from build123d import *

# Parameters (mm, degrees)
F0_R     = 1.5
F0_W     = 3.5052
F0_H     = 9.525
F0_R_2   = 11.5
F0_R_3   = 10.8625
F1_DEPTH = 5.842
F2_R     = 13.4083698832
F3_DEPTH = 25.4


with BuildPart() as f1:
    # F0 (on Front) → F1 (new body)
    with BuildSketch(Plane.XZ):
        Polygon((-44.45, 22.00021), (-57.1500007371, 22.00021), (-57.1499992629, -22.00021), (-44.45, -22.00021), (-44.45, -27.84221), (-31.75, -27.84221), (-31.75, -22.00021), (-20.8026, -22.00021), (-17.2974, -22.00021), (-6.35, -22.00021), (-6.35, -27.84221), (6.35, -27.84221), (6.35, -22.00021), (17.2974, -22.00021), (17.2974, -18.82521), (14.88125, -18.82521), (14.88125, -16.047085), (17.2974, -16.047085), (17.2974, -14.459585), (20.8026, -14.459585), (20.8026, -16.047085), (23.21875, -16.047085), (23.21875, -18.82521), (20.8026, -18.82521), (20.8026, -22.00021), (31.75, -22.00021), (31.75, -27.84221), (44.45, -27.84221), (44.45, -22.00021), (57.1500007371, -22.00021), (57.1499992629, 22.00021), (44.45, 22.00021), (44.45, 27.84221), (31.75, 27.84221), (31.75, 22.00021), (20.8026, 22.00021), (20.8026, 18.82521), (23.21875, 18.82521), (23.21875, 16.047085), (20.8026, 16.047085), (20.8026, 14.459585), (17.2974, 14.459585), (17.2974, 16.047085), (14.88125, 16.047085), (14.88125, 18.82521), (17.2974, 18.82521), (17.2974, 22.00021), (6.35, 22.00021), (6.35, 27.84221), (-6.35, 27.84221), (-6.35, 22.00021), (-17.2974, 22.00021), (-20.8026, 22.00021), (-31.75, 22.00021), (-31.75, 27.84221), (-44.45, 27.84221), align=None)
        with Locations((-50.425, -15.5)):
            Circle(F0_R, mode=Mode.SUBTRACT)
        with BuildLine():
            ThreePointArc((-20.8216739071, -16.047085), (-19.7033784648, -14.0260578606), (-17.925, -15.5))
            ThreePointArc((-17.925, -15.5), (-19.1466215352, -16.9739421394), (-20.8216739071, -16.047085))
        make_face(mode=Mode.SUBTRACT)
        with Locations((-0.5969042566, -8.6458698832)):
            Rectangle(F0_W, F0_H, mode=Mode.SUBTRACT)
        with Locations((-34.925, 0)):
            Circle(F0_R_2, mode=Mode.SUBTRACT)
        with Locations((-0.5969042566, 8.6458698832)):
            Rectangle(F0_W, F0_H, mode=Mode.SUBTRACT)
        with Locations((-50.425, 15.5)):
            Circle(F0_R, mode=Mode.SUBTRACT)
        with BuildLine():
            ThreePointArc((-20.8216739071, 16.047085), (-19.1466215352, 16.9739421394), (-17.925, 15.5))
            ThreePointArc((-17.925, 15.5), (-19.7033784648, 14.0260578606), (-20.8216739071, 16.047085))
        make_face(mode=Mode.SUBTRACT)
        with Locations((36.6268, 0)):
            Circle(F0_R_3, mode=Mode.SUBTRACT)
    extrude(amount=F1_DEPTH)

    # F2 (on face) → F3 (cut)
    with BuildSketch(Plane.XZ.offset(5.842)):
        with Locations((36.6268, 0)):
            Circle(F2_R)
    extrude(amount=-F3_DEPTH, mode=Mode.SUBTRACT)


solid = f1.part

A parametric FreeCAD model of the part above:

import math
import FreeCAD as App
import Part
import Sketcher

V = App.Vector
Q = App.Units.Quantity

doc = App.newDocument("Part")
params = doc.addObject("Spreadsheet::Sheet", "Params")
for row, (alias, value) in enumerate([
    ("sketch1_width", "1 in"),
    ("sketch1_width2", "0.5 in"),
    ("sketch1_height", "0.23 in"),
    ("sketch1_width3", "0.431 in"),
    ("sketch1_height2", "0.125 in"),
    ("pad1_length", "0.23 in"),
    ("pocket1_length", "1 in"),
], start=1):
    params.set(f"A{row}", alias)
    params.set(f"B{row}", "=" + value)
    params.setAlias(f"B{row}", alias)

body = doc.addObject("PartDesign::Body", "Body")

# Sketch on XZ plane
sketch1 = doc.addObject("Sketcher::SketchObject", "Sketch")
body.addObject(sketch1)
sketch1.AttachmentSupport = (doc.XZ_Plane, [""])
sketch1.MapMode = "FlatFace"
sketch1.addGeometry(Part.LineSegment(V(-44.5, 22, 0), V(-57.2, 22, 0)), False)
sketch1.addGeometry(Part.LineSegment(V(-57.2, 22, 0), V(-57.1, -22, 0)), False)
sketch1.addGeometry(Part.LineSegment(V(-57.1, -22, 0), V(-44.5, -22, 0)), False)
sketch1.addGeometry(Part.LineSegment(V(-44.5, -22, 0), V(-44.5, -27.8, 0)), False)
sketch1.addGeometry(Part.LineSegment(V(-44.5, -27.8, 0), V(-31.8, -27.8, 0)), False)
sketch1.addGeometry(Part.LineSegment(V(-31.8, -27.8, 0), V(-31.8, -22, 0)), False)
sketch1.addGeometry(Part.LineSegment(V(-31.8, -22, 0), V(-6.3, -22, 0)), False)
sketch1.addGeometry(Part.LineSegment(V(-6.3, -22, 0), V(-6.3, -27.8, 0)), False)
sketch1.addGeometry(Part.LineSegment(V(-6.3, -27.8, 0), V(6.3, -27.8, 0)), False)
sketch1.addGeometry(Part.LineSegment(V(6.3, -27.8, 0), V(6.3, -22, 0)), False)
sketch1.addGeometry(Part.LineSegment(V(6.3, -22, 0), V(17.3, -22, 0)), False)
sketch1.addGeometry(Part.LineSegment(V(17.3, -22, 0), V(17.3, -18.8, 0)), False)
sketch1.addGeometry(Part.LineSegment(V(17.3, -18.8, 0), V(14.9, -18.8, 0)), False)
sketch1.addGeometry(Part.LineSegment(V(14.9, -18.8, 0), V(14.9, -16, 0)), False)
sketch1.addGeometry(Part.LineSegment(V(14.9, -16, 0), V(17.3, -16, 0)), False)
sketch1.addGeometry(Part.LineSegment(V(17.3, -16, 0), V(17.3, -14.5, 0)), False)
sketch1.addGeometry(Part.LineSegment(V(17.3, -14.5, 0), V(20.8, -14.5, 0)), False)
sketch1.addGeometry(Part.LineSegment(V(20.8, -14.5, 0), V(20.8, -16, 0)), False)
sketch1.addGeometry(Part.LineSegment(V(20.8, -16, 0), V(23.2, -16, 0)), False)
sketch1.addGeometry(Part.LineSegment(V(23.2, -16, 0), V(23.2, -18.8, 0)), False)
sketch1.addGeometry(Part.LineSegment(V(23.2, -18.8, 0), V(20.8, -18.8, 0)), False)
sketch1.addGeometry(Part.LineSegment(V(20.8, -18.8, 0), V(20.8, -22, 0)), False)
sketch1.addGeometry(Part.LineSegment(V(20.8, -22, 0), V(31.8, -22, 0)), False)
sketch1.addGeometry(Part.LineSegment(V(31.8, -22, 0), V(31.8, -27.8, 0)), False)
sketch1.addGeometry(Part.LineSegment(V(31.8, -27.8, 0), V(44.5, -27.8, 0)), False)
sketch1.addGeometry(Part.LineSegment(V(44.5, -27.8, 0), V(44.5, -22, 0)), False)
sketch1.addGeometry(Part.LineSegment(V(44.5, -22, 0), V(57.2, -22, 0)), False)
sketch1.addGeometry(Part.LineSegment(V(57.2, -22, 0), V(57.1, 22, 0)), False)
sketch1.addGeometry(Part.LineSegment(V(57.1, 22, 0), V(44.5, 22, 0)), False)
sketch1.addGeometry(Part.LineSegment(V(44.5, 22, 0), V(44.5, 27.8, 0)), False)
sketch1.addGeometry(Part.LineSegment(V(44.5, 27.8, 0), V(31.8, 27.8, 0)), False)
sketch1.addGeometry(Part.LineSegment(V(31.8, 27.8, 0), V(31.8, 22, 0)), False)
sketch1.addGeometry(Part.LineSegment(V(31.8, 22, 0), V(20.8, 22, 0)), False)
sketch1.addGeometry(Part.LineSegment(V(20.8, 22, 0), V(20.8, 18.8, 0)), False)
sketch1.addGeometry(Part.LineSegment(V(20.8, 18.8, 0), V(23.2, 18.8, 0)), False)
sketch1.addGeometry(Part.LineSegment(V(23.2, 18.8, 0), V(23.2, 16, 0)), False)
sketch1.addGeometry(Part.LineSegment(V(23.2, 16, 0), V(20.8, 16, 0)), False)
sketch1.addGeometry(Part.LineSegment(V(20.8, 16, 0), V(20.8, 14.5, 0)), False)
sketch1.addGeometry(Part.LineSegment(V(20.8, 14.5, 0), V(17.3, 14.5, 0)), False)
sketch1.addGeometry(Part.LineSegment(V(17.3, 14.5, 0), V(17.3, 16, 0)), False)
sketch1.addGeometry(Part.LineSegment(V(17.3, 16, 0), V(14.9, 16, 0)), False)
sketch1.addGeometry(Part.LineSegment(V(14.9, 16, 0), V(14.9, 18.8, 0)), False)
sketch1.addGeometry(Part.LineSegment(V(14.9, 18.8, 0), V(17.3, 18.8, 0)), False)
sketch1.addGeometry(Part.LineSegment(V(17.3, 18.8, 0), V(17.3, 22, 0)), False)
sketch1.addGeometry(Part.LineSegment(V(17.3, 22, 0), V(6.3, 22, 0)), False)
sketch1.addGeometry(Part.LineSegment(V(6.3, 22, 0), V(6.3, 27.8, 0)), False)
sketch1.addGeometry(Part.LineSegment(V(6.3, 27.8, 0), V(-6.3, 27.8, 0)), False)
sketch1.addGeometry(Part.LineSegment(V(-6.3, 27.8, 0), V(-6.3, 22, 0)), False)
sketch1.addGeometry(Part.LineSegment(V(-6.3, 22, 0), V(-31.8, 22, 0)), False)
sketch1.addGeometry(Part.LineSegment(V(-31.8, 22, 0), V(-31.8, 27.8, 0)), False)
sketch1.addGeometry(Part.LineSegment(V(-31.8, 27.8, 0), V(-44.5, 27.8, 0)), False)
sketch1.addGeometry(Part.LineSegment(V(-44.5, 27.8, 0), V(-44.5, 22, 0)), False)
sketch1.addGeometry(Part.Circle(V(-50.4, -15.5, 0), V(0, 0, 1), 1.5), False)
sketch1.addGeometry(Part.ArcOfCircle(Part.Circle(V(-19.4, -15.5, 0), V(0, 0, 1), 1.5), math.radians(-159), math.radians(0)), False)
sketch1.addGeometry(Part.ArcOfCircle(Part.Circle(V(-19.4, -15.5, 0), V(0, 0, 1), 1.5), math.radians(0), math.radians(201)), False)
sketch1.addGeometry(Part.LineSegment(V(1.2, -13.4, 0), V(-2.3, -13.4, 0)), False)
sketch1.addGeometry(Part.LineSegment(V(-2.3, -13.4, 0), V(-2.3, -3.9, 0)), False)
sketch1.addGeometry(Part.LineSegment(V(-2.3, -3.9, 0), V(1.2, -3.9, 0)), False)
sketch1.addGeometry(Part.LineSegment(V(1.2, -3.9, 0), V(1.2, -13.4, 0)), False)
sketch1.addGeometry(Part.Circle(V(-34.9, 0, 0), V(0, 0, 1), 11.5), False)
sketch1.addGeometry(Part.Circle(V(-50.4, 15.5, 0), V(0, 0, 1), 1.5), False)
sketch1.addGeometry(Part.ArcOfCircle(Part.Circle(V(-19.4, 15.5, 0), V(0, 0, 1), 1.5), math.radians(159), math.radians(360)), False)
sketch1.addGeometry(Part.ArcOfCircle(Part.Circle(V(-19.4, 15.5, 0), V(0, 0, 1), 1.5), math.radians(0), math.radians(159)), False)
sketch1.addGeometry(Part.Circle(V(36.6, 0, 0), V(0, 0, 1), 10.9), False)
sketch1.addGeometry(Part.LineSegment(V(1.2, 3.9, 0), V(-2.3, 3.9, 0)), False)
sketch1.addGeometry(Part.LineSegment(V(-2.3, 3.9, 0), V(-2.3, 13.4, 0)), False)
sketch1.addGeometry(Part.LineSegment(V(-2.3, 13.4, 0), V(1.2, 13.4, 0)), False)
sketch1.addGeometry(Part.LineSegment(V(1.2, 13.4, 0), V(1.2, 3.9, 0)), False)
sketch1.addConstraint(Sketcher.Constraint("Coincident", 0, 2, 1, 1))
sketch1.addConstraint(Sketcher.Constraint("Coincident", 1, 2, 2, 1))
sketch1.addConstraint(Sketcher.Constraint("Coincident", 2, 2, 3, 1))
sketch1.addConstraint(Sketcher.Constraint("Coincident", 3, 2, 4, 1))
sketch1.addConstraint(Sketcher.Constraint("Coincident", 4, 2, 5, 1))
sketch1.addConstraint(Sketcher.Constraint("Coincident", 5, 2, 6, 1))
sketch1.addConstraint(Sketcher.Constraint("Coincident", 6, 2, 7, 1))
sketch1.addConstraint(Sketcher.Constraint("Coincident", 7, 2, 8, 1))
sketch1.addConstraint(Sketcher.Constraint("Coincident", 8, 2, 9, 1))
sketch1.addConstraint(Sketcher.Constraint("Coincident", 9, 2, 10, 1))
sketch1.addConstraint(Sketcher.Constraint("Coincident", 10, 2, 11, 1))
sketch1.addConstraint(Sketcher.Constraint("Coincident", 11, 2, 12, 1))
sketch1.addConstraint(Sketcher.Constraint("Coincident", 12, 2, 13, 1))
sketch1.addConstraint(Sketcher.Constraint("Coincident", 13, 2, 14, 1))
sketch1.addConstraint(Sketcher.Constraint("Coincident", 14, 2, 15, 1))
sketch1.addConstraint(Sketcher.Constraint("Coincident", 15, 2, 16, 1))
sketch1.addConstraint(Sketcher.Constraint("Coincident", 16, 2, 17, 1))
sketch1.addConstraint(Sketcher.Constraint("Coincident", 17, 2, 18, 1))
sketch1.addConstraint(Sketcher.Constraint("Coincident", 18, 2, 19, 1))
sketch1.addConstraint(Sketcher.Constraint("Coincident", 19, 2, 20, 1))
sketch1.addConstraint(Sketcher.Constraint("Coincident", 20, 2, 21, 1))
sketch1.addConstraint(Sketcher.Constraint("Coincident", 21, 2, 22, 1))
sketch1.addConstraint(Sketcher.Constraint("Coincident", 22, 2, 23, 1))
sketch1.addConstraint(Sketcher.Constraint("Coincident", 23, 2, 24, 1))
sketch1.addConstraint(Sketcher.Constraint("Coincident", 24, 2, 25, 1))
sketch1.addConstraint(Sketcher.Constraint("Coincident", 25, 2, 26, 1))
sketch1.addConstraint(Sketcher.Constraint("Coincident", 26, 2, 27, 1))
sketch1.addConstraint(Sketcher.Constraint("Coincident", 27, 2, 28, 1))
sketch1.addConstraint(Sketcher.Constraint("Coincident", 28, 2, 29, 1))
sketch1.addConstraint(Sketcher.Constraint("Coincident", 29, 2, 30, 1))
sketch1.addConstraint(Sketcher.Constraint("Coincident", 30, 2, 31, 1))
sketch1.addConstraint(Sketcher.Constraint("Coincident", 31, 2, 32, 1))
sketch1.addConstraint(Sketcher.Constraint("Coincident", 32, 2, 33, 1))
sketch1.addConstraint(Sketcher.Constraint("Coincident", 33, 2, 34, 1))
sketch1.addConstraint(Sketcher.Constraint("Coincident", 34, 2, 35, 1))
sketch1.addConstraint(Sketcher.Constraint("Coincident", 35, 2, 36, 1))
sketch1.addConstraint(Sketcher.Constraint("Coincident", 36, 2, 37, 1))
sketch1.addConstraint(Sketcher.Constraint("Coincident", 37, 2, 38, 1))
sketch1.addConstraint(Sketcher.Constraint("Coincident", 38, 2, 39, 1))
sketch1.addConstraint(Sketcher.Constraint("Coincident", 39, 2, 40, 1))
sketch1.addConstraint(Sketcher.Constraint("Coincident", 40, 2, 41, 1))
sketch1.addConstraint(Sketcher.Constraint("Coincident", 41, 2, 42, 1))
sketch1.addConstraint(Sketcher.Constraint("Coincident", 42, 2, 43, 1))
sketch1.addConstraint(Sketcher.Constraint("Coincident", 43, 2, 44, 1))
sketch1.addConstraint(Sketcher.Constraint("Coincident", 44, 2, 45, 1))
sketch1.addConstraint(Sketcher.Constraint("Coincident", 45, 2, 46, 1))
sketch1.addConstraint(Sketcher.Constraint("Coincident", 46, 2, 47, 1))
sketch1.addConstraint(Sketcher.Constraint("Coincident", 47, 2, 48, 1))
sketch1.addConstraint(Sketcher.Constraint("Coincident", 48, 2, 49, 1))
sketch1.addConstraint(Sketcher.Constraint("Coincident", 49, 2, 50, 1))
sketch1.addConstraint(Sketcher.Constraint("Coincident", 50, 2, 51, 1))
sketch1.addConstraint(Sketcher.Constraint("Coincident", 51, 2, 0, 1))
sketch1.addConstraint(Sketcher.Constraint("Tangent", 53, 1, 54, 2))
sketch1.addConstraint(Sketcher.Constraint("Coincident", 54, 1, 53, 2))
sketch1.addConstraint(Sketcher.Constraint("Coincident", 55, 2, 56, 1))
sketch1.addConstraint(Sketcher.Constraint("Coincident", 56, 2, 57, 1))
sketch1.addConstraint(Sketcher.Constraint("Coincident", 57, 2, 58, 1))
sketch1.addConstraint(Sketcher.Constraint("Coincident", 58, 2, 55, 1))
sketch1.addConstraint(Sketcher.Constraint("Tangent", 61, 1, 62, 2))
sketch1.addConstraint(Sketcher.Constraint("Coincident", 62, 1, 61, 2))
sketch1.addConstraint(Sketcher.Constraint("Coincident", 64, 2, 65, 1))
sketch1.addConstraint(Sketcher.Constraint("Coincident", 65, 2, 66, 1))
sketch1.addConstraint(Sketcher.Constraint("Coincident", 66, 2, 67, 1))
sketch1.addConstraint(Sketcher.Constraint("Coincident", 67, 2, 64, 1))
sketch1.addConstraint(Sketcher.Constraint("Horizontal", 0))
sketch1.addConstraint(Sketcher.Constraint("Vertical", 1))
sketch1.addConstraint(Sketcher.Constraint("Horizontal", 2))
sketch1.addConstraint(Sketcher.Constraint("Vertical", 3))
sketch1.addConstraint(Sketcher.Constraint("Horizontal", 4))
sketch1.addConstraint(Sketcher.Constraint("Vertical", 5))
sketch1.addConstraint(Sketcher.Constraint("Horizontal", 6))
sketch1.addConstraint(Sketcher.Constraint("Vertical", 7))
sketch1.addConstraint(Sketcher.Constraint("Horizontal", 8))
sketch1.addConstraint(Sketcher.Constraint("Vertical", 9))
sketch1.addConstraint(Sketcher.Constraint("Horizontal", 10))
sketch1.addConstraint(Sketcher.Constraint("Vertical", 11))
sketch1.addConstraint(Sketcher.Constraint("Horizontal", 12))
sketch1.addConstraint(Sketcher.Constraint("Vertical", 13))
sketch1.addConstraint(Sketcher.Constraint("Horizontal", 14))
sketch1.addConstraint(Sketcher.Constraint("Vertical", 15))
sketch1.addConstraint(Sketcher.Constraint("Horizontal", 16))
sketch1.addConstraint(Sketcher.Constraint("Vertical", 17))
sketch1.addConstraint(Sketcher.Constraint("Horizontal", 18))
sketch1.addConstraint(Sketcher.Constraint("Vertical", 19))
sketch1.addConstraint(Sketcher.Constraint("Horizontal", 20))
sketch1.addConstraint(Sketcher.Constraint("Vertical", 21))
sketch1.addConstraint(Sketcher.Constraint("Horizontal", 22))
sketch1.addConstraint(Sketcher.Constraint("Vertical", 23))
sketch1.addConstraint(Sketcher.Constraint("Horizontal", 24))
sketch1.addConstraint(Sketcher.Constraint("Vertical", 25))
sketch1.addConstraint(Sketcher.Constraint("Horizontal", 26))
sketch1.addConstraint(Sketcher.Constraint("Vertical", 27))
sketch1.addConstraint(Sketcher.Constraint("Horizontal", 28))
sketch1.addConstraint(Sketcher.Constraint("Vertical", 29))
sketch1.addConstraint(Sketcher.Constraint("Horizontal", 30))
sketch1.addConstraint(Sketcher.Constraint("Vertical", 31))
sketch1.addConstraint(Sketcher.Constraint("Horizontal", 32))
sketch1.addConstraint(Sketcher.Constraint("Vertical", 33))
sketch1.addConstraint(Sketcher.Constraint("Horizontal", 34))
sketch1.addConstraint(Sketcher.Constraint("Vertical", 35))
sketch1.addConstraint(Sketcher.Constraint("Horizontal", 36))
sketch1.addConstraint(Sketcher.Constraint("Vertical", 37))
sketch1.addConstraint(Sketcher.Constraint("Horizontal", 38))
sketch1.addConstraint(Sketcher.Constraint("Vertical", 39))
sketch1.addConstraint(Sketcher.Constraint("Horizontal", 40))
sketch1.addConstraint(Sketcher.Constraint("Vertical", 41))
sketch1.addConstraint(Sketcher.Constraint("Horizontal", 42))
sketch1.addConstraint(Sketcher.Constraint("Vertical", 43))
sketch1.addConstraint(Sketcher.Constraint("Horizontal", 44))
sketch1.addConstraint(Sketcher.Constraint("Vertical", 45))
sketch1.addConstraint(Sketcher.Constraint("Horizontal", 46))
sketch1.addConstraint(Sketcher.Constraint("Vertical", 47))
sketch1.addConstraint(Sketcher.Constraint("Horizontal", 48))
sketch1.addConstraint(Sketcher.Constraint("Vertical", 49))
sketch1.addConstraint(Sketcher.Constraint("Horizontal", 50))
sketch1.addConstraint(Sketcher.Constraint("Vertical", 51))
sketch1.addConstraint(Sketcher.Constraint("Horizontal", 55))
sketch1.addConstraint(Sketcher.Constraint("Vertical", 56))
sketch1.addConstraint(Sketcher.Constraint("Horizontal", 57))
sketch1.addConstraint(Sketcher.Constraint("Vertical", 58))
sketch1.addConstraint(Sketcher.Constraint("Horizontal", 64))
sketch1.addConstraint(Sketcher.Constraint("Vertical", 65))
sketch1.addConstraint(Sketcher.Constraint("Horizontal", 66))
sketch1.addConstraint(Sketcher.Constraint("Vertical", 67))
sketch1.addConstraint(Sketcher.Constraint("Equal", 52, 53))
sketch1.addConstraint(Sketcher.Constraint("Equal", 54, 60))
sketch1.addConstraint(Sketcher.Constraint("Equal", 60, 61))
sketch1.addConstraint(Sketcher.Constraint("Symmetric", 0, 2, 26, 2, -1, 1))
sketch1.addConstraint(Sketcher.Constraint("Symmetric", 2, 2, 28, 2, -1, 1))
sketch1.addConstraint(Sketcher.Constraint("Symmetric", 4, 2, 30, 2, -1, 1))
sketch1.addConstraint(Sketcher.Constraint("Symmetric", 6, 2, 44, 2, -1, 1))
sketch1.addConstraint(Sketcher.Constraint("Symmetric", 8, 2, 46, 2, -1, 1))
sketch1.addConstraint(Sketcher.Constraint("Symmetric", 22, 2, 48, 2, -1, 1))
sketch1.addConstraint(Sketcher.Constraint("Symmetric", 24, 2, 50, 2, -1, 1))
sketch1.addConstraint(Sketcher.Constraint("Symmetric", 6, 2, 9, 2, -2))
sketch1.addConstraint(Sketcher.Constraint("Symmetric", 5, 2, 22, 2, -2))
sketch1.addConstraint(Sketcher.Constraint("Symmetric", 3, 2, 24, 2, -2))
sketch1.addConstraint(Sketcher.Constraint("Symmetric", 52, 3, 60, 3, -1))
sketch1.addConstraint(Sketcher.Constraint("Symmetric", 53, 3, 61, 3, -1))
sketch1.addConstraint(Sketcher.Constraint("Symmetric", 21, 2, 32, 2, -1))
sketch1.addConstraint(Sketcher.Constraint("Symmetric", 19, 2, 34, 2, -1))
sketch1.addConstraint(Sketcher.Constraint("Symmetric", 17, 2, 36, 2, -1))
sketch1.addConstraint(Sketcher.Constraint("Symmetric", 15, 2, 38, 2, -1))
sketch1.addConstraint(Sketcher.Constraint("Symmetric", 13, 2, 40, 2, -1))
sketch1.addConstraint(Sketcher.Constraint("Symmetric", 11, 2, 42, 2, -1))
sketch1.addConstraint(Sketcher.Constraint("Symmetric", 56, 2, 64, 2, -1))
sketch1.addConstraint(Sketcher.Constraint("Symmetric", 58, 2, 66, 2, -1))
sketch1.addConstraint(Sketcher.Constraint("PointOnObject", 59, 3, -1))
sketch1.addConstraint(Sketcher.Constraint("PointOnObject", 63, 3, -1))
sketch1.addConstraint(Sketcher.Constraint("Horizontal", 52, 3, 53, 3))
sketch1.addConstraint(Sketcher.Constraint("Horizontal", 2, 2, 5, 2))
sketch1.addConstraint(Sketcher.Constraint("Horizontal", 4, 2, 7, 2))
sketch1.addConstraint(Sketcher.Constraint("Horizontal", 14, 2, 17, 2))
sketch1.addConstraint(Sketcher.Constraint("Horizontal", 12, 2, 19, 2))
sketch1.addConstraint(Sketcher.Constraint("Horizontal", 22, 2, 25, 2))
sketch1.addConstraint(Sketcher.Constraint("Horizontal", 18, 2, 53, 1))
sketch1.addConstraint(Sketcher.Constraint("Horizontal", 53, 3, 54, 1))
sketch1.addConstraint(Sketcher.Constraint("Horizontal", 40, 2, 61, 1))
sketch1.addConstraint(Sketcher.Constraint("Horizontal", 61, 3, 62, 1))
sketch1.addConstraint(Sketcher.Constraint("Vertical", 11, 2, 14, 2))
sketch1.addConstraint(Sketcher.Constraint("Vertical", 17, 2, 20, 2))
sketch1.addConstraint(Sketcher.Constraint("Equal", 2, 4))
sketch1.addConstraint(Sketcher.Constraint("Equal", 4, 8))
sketch1.addConstraint(Sketcher.Constraint("Equal", 14, 18))
sketch1.addConstraint(Sketcher.Constraint("Equal", 10, 22))
sketch1.addConstraint(Sketcher.Constraint("Equal", 38, 55))
sketch1.addConstraint(Sketcher.Constraint("DistanceX", 6, 1, 6, 2, Q("1 in")))
sketch1.addConstraint(Sketcher.Constraint("DistanceX", 0, 2, 0, 1, Q("0.5 in")))
sketch1.addConstraint(Sketcher.Constraint("DistanceY", 3, 2, 3, 1, Q("0.23 in")))
sketch1.addConstraint(Sketcher.Constraint("Diameter", 52, 3.0))
sketch1.addConstraint(Sketcher.Constraint("Diameter", 59, 23.0))
sketch1.addConstraint(Sketcher.Constraint("Diameter", 63, 21.725))
sketch1.addConstraint(Sketcher.Constraint("DistanceX", 10, 1, 10, 2, Q("0.431 in")))
sketch1.addConstraint(Sketcher.Constraint("DistanceY", 11, 1, 11, 2, Q("0.125 in")))
sketch1.addConstraint(Sketcher.Constraint("DistanceY", 13, 1, 13, 2, Q("0.109375 in")))
sketch1.addConstraint(Sketcher.Constraint("DistanceY", 15, 1, 15, 2, Q("0.0625 in")))
sketch1.addConstraint(Sketcher.Constraint("DistanceY", 56, 1, 56, 2, Q("0.375 in")))
sketch1.addConstraint(Sketcher.Constraint("DistanceY", 1, 2, 1, 1, Q("1.7323 in")))
sketch1.addConstraint(Sketcher.Constraint("DistanceX", 59, 3, -1, 1, Q("1.375 in")))
sketch1.addConstraint(Sketcher.Constraint("DistanceX", -1, 1, 63, 3, Q("1.442 in")))
sketch1.addConstraint(Sketcher.Constraint("DistanceX", 55, 2, -1, 1, Q("0.0925002 in")))
sketch1.addConstraint(Sketcher.Constraint("DistanceX", 12, 2, 12, 1, 2.41615))
sketch1.addConstraint(Sketcher.Constraint("DistanceX", 52, 3, -1, 1, 50.425))
sketch1.addConstraint(Sketcher.Constraint("DistanceY", 52, 3, -1, 1, 15.5))
sketch1.addConstraint(Sketcher.Constraint("DistanceX", 53, 3, -1, 1, 19.425))
sketch1.addConstraint(Sketcher.Constraint("DistanceY", 55, 2, -1, 1, 13.40837))
sketch1.setExpression("Constraints[166]", "Params.sketch1_width")
sketch1.setExpression("Constraints[167]", "Params.sketch1_width2")
sketch1.setExpression("Constraints[168]", "Params.sketch1_height")
sketch1.setExpression("Constraints[172]", "Params.sketch1_width3")
sketch1.setExpression("Constraints[173]", "Params.sketch1_height2")
pad1 = doc.addObject("PartDesign::Pad", "Pad")
body.addObject(pad1)
pad1.Profile = sketch1
pad1.setExpression("Length", "Params.pad1_length")

# Sketch on XZ plane
sketch2 = doc.addObject("Sketcher::SketchObject", "Sketch001")
body.addObject(sketch2)
sketch2.AttachmentSupport = (doc.XZ_Plane, [""])
sketch2.MapMode = "FlatFace"
sketch2.AttachmentOffset = App.Placement(V(0, 0, 0.23 * 25.4), App.Rotation())
sketch2.addGeometry(Part.Circle(V(37, 0, 0), V(0, 0, 1), 13), False)
sketch2.addConstraint(Sketcher.Constraint("PointOnObject", 0, 3, -1))
sketch2.addConstraint(Sketcher.Constraint("Diameter", 0, 26.81674))
sketch2.addConstraint(Sketcher.Constraint("DistanceX", -1, 1, 0, 3, Q("1.442 in")))
pocket1 = doc.addObject("PartDesign::Pocket", "Pocket")
body.addObject(pocket1)
pocket1.Profile = sketch2
pocket1.setExpression("Length", "Params.pocket1_length")

doc.recompute()
